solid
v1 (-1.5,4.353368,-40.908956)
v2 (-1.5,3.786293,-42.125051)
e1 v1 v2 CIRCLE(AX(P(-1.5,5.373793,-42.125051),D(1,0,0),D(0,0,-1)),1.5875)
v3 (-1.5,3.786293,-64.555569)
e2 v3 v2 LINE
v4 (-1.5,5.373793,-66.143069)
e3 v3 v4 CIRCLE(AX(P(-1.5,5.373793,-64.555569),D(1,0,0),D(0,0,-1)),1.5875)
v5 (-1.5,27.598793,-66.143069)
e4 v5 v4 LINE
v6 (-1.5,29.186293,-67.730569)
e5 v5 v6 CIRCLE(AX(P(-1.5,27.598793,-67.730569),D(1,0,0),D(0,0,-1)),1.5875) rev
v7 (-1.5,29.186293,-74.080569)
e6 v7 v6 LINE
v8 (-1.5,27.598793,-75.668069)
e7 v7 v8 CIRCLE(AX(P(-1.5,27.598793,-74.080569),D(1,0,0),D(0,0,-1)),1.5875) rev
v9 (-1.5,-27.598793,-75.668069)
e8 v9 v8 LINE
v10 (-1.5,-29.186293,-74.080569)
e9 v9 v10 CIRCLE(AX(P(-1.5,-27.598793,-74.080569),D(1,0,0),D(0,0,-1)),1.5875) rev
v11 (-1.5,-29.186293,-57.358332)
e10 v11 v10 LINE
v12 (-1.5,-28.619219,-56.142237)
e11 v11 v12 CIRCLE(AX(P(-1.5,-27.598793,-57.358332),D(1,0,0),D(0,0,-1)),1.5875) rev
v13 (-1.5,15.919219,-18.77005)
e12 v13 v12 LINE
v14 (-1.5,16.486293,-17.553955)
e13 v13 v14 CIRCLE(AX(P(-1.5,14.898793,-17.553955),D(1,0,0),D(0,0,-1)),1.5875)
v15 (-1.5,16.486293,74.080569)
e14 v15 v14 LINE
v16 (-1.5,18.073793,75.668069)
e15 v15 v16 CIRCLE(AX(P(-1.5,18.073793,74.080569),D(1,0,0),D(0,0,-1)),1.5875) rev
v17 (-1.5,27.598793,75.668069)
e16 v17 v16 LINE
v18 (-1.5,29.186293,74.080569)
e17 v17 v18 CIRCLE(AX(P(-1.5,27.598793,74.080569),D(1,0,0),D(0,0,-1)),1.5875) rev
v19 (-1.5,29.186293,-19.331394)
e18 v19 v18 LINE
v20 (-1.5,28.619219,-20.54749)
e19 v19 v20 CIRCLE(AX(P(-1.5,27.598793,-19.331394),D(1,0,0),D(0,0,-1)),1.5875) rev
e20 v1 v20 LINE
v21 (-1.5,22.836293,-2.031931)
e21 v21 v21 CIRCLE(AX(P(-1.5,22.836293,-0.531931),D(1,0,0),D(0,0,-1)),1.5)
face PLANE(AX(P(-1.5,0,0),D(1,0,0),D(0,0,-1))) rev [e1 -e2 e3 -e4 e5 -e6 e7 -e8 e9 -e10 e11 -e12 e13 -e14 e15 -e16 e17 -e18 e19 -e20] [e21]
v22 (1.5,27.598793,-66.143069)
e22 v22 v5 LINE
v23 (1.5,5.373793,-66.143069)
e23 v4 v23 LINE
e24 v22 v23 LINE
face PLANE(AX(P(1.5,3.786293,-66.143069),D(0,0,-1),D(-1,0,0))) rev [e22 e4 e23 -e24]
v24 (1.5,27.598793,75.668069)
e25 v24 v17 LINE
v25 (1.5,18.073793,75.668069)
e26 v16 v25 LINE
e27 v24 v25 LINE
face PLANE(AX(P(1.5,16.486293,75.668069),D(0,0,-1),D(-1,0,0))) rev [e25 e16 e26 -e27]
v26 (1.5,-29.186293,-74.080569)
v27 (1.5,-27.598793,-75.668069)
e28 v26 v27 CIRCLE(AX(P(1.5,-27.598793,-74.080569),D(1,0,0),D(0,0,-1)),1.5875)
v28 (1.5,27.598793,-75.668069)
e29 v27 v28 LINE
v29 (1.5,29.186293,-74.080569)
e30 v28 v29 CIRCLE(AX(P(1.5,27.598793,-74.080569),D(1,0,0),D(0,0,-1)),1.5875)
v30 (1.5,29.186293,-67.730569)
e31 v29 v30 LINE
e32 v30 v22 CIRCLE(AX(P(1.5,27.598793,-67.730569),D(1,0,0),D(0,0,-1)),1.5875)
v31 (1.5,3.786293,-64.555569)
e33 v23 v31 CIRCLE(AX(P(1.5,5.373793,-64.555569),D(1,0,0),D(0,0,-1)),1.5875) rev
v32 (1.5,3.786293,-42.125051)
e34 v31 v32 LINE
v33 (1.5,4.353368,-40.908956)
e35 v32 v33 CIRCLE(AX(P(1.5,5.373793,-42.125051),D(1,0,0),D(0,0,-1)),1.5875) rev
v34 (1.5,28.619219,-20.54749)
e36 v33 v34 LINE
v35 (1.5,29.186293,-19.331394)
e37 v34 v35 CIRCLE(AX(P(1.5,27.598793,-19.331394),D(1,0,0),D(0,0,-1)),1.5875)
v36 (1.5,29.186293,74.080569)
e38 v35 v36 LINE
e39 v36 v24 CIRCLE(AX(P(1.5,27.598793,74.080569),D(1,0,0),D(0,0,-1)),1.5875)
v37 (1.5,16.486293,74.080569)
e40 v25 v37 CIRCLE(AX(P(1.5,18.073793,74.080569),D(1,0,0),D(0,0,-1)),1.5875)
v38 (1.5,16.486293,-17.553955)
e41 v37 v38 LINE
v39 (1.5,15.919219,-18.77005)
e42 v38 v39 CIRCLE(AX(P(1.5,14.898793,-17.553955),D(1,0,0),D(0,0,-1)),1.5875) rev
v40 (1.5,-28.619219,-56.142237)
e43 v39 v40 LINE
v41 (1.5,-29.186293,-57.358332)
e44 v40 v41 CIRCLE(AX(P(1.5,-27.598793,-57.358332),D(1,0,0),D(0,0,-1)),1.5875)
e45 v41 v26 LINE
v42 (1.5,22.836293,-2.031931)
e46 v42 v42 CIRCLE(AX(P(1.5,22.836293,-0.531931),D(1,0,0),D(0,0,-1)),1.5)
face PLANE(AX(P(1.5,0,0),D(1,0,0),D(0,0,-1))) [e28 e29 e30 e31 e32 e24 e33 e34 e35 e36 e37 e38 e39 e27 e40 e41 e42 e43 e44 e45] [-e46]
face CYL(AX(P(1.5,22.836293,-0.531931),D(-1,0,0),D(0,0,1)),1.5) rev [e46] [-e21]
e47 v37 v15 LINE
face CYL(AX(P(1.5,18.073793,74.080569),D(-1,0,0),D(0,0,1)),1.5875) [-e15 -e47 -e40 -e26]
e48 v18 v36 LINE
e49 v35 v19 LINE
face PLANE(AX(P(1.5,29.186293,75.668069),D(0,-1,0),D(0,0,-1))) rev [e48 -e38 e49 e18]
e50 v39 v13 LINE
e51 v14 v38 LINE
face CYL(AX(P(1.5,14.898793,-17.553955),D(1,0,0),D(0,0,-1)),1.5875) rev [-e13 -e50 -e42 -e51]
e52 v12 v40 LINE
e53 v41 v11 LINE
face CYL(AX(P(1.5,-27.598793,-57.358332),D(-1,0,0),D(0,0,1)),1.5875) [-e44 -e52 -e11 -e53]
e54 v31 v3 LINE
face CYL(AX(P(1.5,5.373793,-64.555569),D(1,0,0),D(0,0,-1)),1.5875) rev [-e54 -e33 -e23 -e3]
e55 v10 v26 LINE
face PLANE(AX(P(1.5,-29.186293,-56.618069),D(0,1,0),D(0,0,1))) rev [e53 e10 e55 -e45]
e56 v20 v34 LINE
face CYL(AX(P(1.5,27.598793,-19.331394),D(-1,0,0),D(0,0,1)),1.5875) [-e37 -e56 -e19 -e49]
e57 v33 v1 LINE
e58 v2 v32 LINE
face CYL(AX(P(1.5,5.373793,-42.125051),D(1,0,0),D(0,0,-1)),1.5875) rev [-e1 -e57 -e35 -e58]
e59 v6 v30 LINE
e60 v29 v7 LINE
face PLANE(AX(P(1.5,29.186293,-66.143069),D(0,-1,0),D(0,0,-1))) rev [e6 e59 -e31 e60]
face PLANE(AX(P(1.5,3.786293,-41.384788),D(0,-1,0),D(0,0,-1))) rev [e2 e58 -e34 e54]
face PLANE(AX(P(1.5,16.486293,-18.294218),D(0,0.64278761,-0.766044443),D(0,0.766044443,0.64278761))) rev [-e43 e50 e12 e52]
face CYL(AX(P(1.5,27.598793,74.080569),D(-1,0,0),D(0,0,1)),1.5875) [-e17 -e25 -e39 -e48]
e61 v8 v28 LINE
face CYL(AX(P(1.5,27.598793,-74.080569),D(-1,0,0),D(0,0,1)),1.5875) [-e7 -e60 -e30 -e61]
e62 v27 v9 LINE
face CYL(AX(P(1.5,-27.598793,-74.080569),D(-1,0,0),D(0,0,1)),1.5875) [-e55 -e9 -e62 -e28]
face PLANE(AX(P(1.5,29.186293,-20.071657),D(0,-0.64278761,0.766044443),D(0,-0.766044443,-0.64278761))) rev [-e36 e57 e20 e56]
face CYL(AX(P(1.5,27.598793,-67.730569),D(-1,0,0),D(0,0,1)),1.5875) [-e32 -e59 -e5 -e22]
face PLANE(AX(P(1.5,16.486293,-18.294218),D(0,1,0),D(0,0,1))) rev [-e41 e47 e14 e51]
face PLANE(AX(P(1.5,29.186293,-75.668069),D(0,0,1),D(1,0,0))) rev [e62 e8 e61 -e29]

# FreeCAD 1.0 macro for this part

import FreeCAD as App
import Part
import Sketcher
Q = App.Units.Quantity


def edges_at(feature, points):
    """Names of the edges that pass closest to the given points."""
    edges = feature.Shape.Edges
    near = lambda p: min(range(len(edges)), key=lambda i: edges[i].distToShape(Part.Vertex(*p))[0])
    return sorted({f"Edge{near(p) + 1}" for p in points})


def add_polygon(sketch, points):
    """Adds a closed chain of lines whose ends are joined by coincident constraints."""
    first, n = sketch.GeometryCount, len(points)
    for a, b in zip(points, points[1:] + points[:1]):
        sketch.addGeometry(Part.LineSegment(App.Vector(*a, 0), App.Vector(*b, 0)), False)
    for i in range(n):
        sketch.addConstraint(Sketcher.Constraint("Coincident", first + i, 2, first + (i + 1) % n, 1))

doc = App.newDocument("Part")
body = doc.addObject("PartDesign::Body", "Body")

# Sketch on YZ plane
sketch1 = body.newObject("Sketcher::SketchObject", "Sketch")
sketch1.AttachmentSupport = (doc.getObject("YZ_Plane"), [""])
sketch1.MapMode = "FlatFace"
add_polygon(sketch1, [(29.2, 75.7), (16.5, 75.7), (16.5, -18.3), (-29.2, -56.6), (-29.2, -75.7), (29.2, -75.7), (29.2, -66.1), (3.8, -66.1), (3.8, -41.4), (29.2, -20.1)])  # lines 0-9
sketch1.addGeometry(Part.Circle(App.Vector(22.8, -0.5, 0), App.Vector(0, 0, 1), 1.5), False)  # 10
sketch1.addConstraint([
    Sketcher.Constraint("Horizontal", 0),
    Sketcher.Constraint("Vertical", 1),
    Sketcher.Constraint("Vertical", 3),
    Sketcher.Constraint("Horizontal", 4),
    Sketcher.Constraint("Vertical", 5),
    Sketcher.Constraint("Horizontal", 6),
    Sketcher.Constraint("Vertical", 7),
    Sketcher.Constraint("Vertical", 9),
    Sketcher.Constraint("Symmetric", 3, 2, 9, 2, -1, 1),
    Sketcher.Constraint("Parallel", 2, 8),
    Sketcher.Constraint("Vertical", 5, 2, 8, 2),
    Sketcher.Constraint("DistanceX", 6, 2, 6, 1, Q("1 in")),
    Sketcher.Constraint("DistanceX", 0, 2, 0, 1, Q("0.5 in")),
    Sketcher.Constraint("Angle", 2, Q("-140 deg")),
    Sketcher.Constraint("DistanceY", 10, 3, 0, 2, Q("3 in")),
    Sketcher.Constraint("DistanceY", 3, 2, 3, 1, Q("0.75 in")),
    Sketcher.Constraint("Diameter", 10, 3.0),
    Sketcher.Constraint("DistanceY", 5, 1, 5, 2, Q("0.375 in")),
    Sketcher.Constraint("DistanceX", 0, 2, 10, 3, Q("0.25 in")),
    Sketcher.Constraint("DistanceY", 7, 1, 7, 2, 24.758281),
    Sketcher.Constraint("DistanceX", 4, 1, 4, 2, 58.372587),
    Sketcher.Constraint("DistanceY", 1, 2, 1, 1, 93.962287),
])
pad1 = body.newObject("PartDesign::Pad", "Pad")
pad1.Profile = sketch1
pad1.Length = 3
pad1.Midplane = True
doc.recompute()

fillet = body.newObject("PartDesign::Fillet", "Fillet")
fillet.Base = (pad1, edges_at(pad1, [
    (0, 29.186, -20.072),
    (0, 3.786, -41.385),
    (0, 3.786, -66.143),
    (0, 29.186, -66.143),
    (0, 29.186, -75.668),
    (0, -29.186, -75.668),
    (0, -29.186, -56.618),
    (0, 16.486, -18.294),
    (0, 16.486, 75.668),
    (0, 29.186, 75.668),
]))
fillet.Radius = Q("0.0625 in")

doc.recompute()
